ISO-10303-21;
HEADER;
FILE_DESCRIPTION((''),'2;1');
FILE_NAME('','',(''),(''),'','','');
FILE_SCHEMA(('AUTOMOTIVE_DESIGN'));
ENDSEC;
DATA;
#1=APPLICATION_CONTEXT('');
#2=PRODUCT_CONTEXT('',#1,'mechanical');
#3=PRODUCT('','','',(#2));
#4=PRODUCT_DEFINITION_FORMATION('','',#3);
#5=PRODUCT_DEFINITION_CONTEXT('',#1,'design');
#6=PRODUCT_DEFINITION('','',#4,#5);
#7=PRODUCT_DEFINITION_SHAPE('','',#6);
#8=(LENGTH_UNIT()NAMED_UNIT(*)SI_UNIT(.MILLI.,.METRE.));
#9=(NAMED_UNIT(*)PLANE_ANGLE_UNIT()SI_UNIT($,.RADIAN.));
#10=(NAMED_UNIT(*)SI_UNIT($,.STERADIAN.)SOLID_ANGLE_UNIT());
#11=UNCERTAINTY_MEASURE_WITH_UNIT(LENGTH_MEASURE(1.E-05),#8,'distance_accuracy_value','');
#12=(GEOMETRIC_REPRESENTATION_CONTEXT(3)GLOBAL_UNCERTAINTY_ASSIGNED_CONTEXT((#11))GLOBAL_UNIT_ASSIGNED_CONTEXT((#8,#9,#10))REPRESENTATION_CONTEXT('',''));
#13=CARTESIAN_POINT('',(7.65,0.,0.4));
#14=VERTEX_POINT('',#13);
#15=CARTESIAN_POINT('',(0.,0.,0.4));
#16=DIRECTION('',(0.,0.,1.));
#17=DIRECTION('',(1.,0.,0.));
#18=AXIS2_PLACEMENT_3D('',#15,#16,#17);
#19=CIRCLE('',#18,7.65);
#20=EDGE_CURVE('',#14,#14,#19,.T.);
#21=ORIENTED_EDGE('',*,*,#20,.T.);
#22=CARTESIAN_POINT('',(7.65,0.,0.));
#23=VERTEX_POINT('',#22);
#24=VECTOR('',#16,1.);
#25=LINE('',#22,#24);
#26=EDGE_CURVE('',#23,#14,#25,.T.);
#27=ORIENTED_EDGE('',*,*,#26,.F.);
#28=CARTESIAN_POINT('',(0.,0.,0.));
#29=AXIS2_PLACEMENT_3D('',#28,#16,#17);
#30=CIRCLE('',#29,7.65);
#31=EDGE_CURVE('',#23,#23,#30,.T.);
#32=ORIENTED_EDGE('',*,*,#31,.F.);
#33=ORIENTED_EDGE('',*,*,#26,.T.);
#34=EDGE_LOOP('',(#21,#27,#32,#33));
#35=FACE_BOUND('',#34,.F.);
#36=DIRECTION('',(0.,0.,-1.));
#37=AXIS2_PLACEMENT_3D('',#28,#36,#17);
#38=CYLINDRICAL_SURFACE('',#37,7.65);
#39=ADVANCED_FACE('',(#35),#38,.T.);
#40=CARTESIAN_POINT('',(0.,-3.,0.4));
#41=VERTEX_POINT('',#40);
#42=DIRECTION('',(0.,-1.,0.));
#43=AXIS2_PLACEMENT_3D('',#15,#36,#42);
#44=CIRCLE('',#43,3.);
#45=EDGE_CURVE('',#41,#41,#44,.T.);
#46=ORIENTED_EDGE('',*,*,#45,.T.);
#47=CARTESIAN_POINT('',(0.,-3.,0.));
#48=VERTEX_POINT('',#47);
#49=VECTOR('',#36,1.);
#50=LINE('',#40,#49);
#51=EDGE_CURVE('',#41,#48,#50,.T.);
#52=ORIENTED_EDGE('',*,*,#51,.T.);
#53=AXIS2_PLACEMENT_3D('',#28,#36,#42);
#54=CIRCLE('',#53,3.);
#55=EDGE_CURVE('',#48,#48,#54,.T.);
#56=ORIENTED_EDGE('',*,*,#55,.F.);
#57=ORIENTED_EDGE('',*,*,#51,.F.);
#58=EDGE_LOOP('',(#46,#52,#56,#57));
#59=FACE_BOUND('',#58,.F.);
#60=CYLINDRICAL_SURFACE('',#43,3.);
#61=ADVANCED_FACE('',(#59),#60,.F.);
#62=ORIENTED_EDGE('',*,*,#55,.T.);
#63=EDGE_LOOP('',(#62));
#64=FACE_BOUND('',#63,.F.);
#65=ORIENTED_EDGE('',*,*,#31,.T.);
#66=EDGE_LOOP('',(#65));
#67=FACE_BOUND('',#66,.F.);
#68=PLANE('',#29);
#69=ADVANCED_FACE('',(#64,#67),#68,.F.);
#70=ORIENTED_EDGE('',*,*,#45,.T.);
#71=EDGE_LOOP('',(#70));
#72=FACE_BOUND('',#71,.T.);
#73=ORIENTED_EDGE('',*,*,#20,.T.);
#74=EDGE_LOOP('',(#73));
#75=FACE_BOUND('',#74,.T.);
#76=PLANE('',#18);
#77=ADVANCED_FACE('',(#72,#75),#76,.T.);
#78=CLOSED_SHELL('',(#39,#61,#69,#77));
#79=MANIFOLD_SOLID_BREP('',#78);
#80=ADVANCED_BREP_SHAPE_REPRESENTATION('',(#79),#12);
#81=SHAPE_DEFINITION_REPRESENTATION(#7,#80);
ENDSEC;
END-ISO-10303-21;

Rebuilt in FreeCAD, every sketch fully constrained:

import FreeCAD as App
import Part
import Sketcher

doc = App.newDocument("Part")
body = doc.addObject("PartDesign::Body", "Body")

# Sketch on XY plane
sketch1 = doc.addObject("Sketcher::SketchObject", "Sketch")
body.addObject(sketch1)
sketch1.AttachmentSupport = (doc.XY_Plane, [""])
sketch1.MapMode = "FlatFace"
sketch1.addGeometry(Part.Circle(App.Vector(0, 0, 0), App.Vector(0, 0, 1), 8), False)
sketch1.addConstraint([
    Sketcher.Constraint("Coincident", 0, 3, -1, 1),
    Sketcher.Constraint("Diameter", 0, 15.3),
])
pad1 = doc.addObject("PartDesign::Pad", "Pad")
body.addObject(pad1)
pad1.Profile = sketch1
pad1.Length = 0.4

# Sketch on XY plane
sketch2 = doc.addObject("Sketcher::SketchObject", "Sketch001")
body.addObject(sketch2)
sketch2.AttachmentSupport = (doc.XY_Plane, [""])
sketch2.MapMode = "FlatFace"
sketch2.AttachmentOffset = App.Placement(App.Vector(0, 0, 0.4), App.Rotation())
sketch2.addGeometry(Part.Circle(App.Vector(0, 0, 0), App.Vector(0, 0, 1), 3), False)
sketch2.addConstraint([
    Sketcher.Constraint("Coincident", 0, 3, -1, 1),
    Sketcher.Constraint("Diameter", 0, 6.0),
])
doc.recompute()
hole = doc.addObject("PartDesign::Hole", "Hole")
body.addObject(hole)
hole.Profile = sketch2
hole.ThreadType = "None"
hole.Diameter = 6
hole.DepthType = "ThroughAll"

doc.recompute()
